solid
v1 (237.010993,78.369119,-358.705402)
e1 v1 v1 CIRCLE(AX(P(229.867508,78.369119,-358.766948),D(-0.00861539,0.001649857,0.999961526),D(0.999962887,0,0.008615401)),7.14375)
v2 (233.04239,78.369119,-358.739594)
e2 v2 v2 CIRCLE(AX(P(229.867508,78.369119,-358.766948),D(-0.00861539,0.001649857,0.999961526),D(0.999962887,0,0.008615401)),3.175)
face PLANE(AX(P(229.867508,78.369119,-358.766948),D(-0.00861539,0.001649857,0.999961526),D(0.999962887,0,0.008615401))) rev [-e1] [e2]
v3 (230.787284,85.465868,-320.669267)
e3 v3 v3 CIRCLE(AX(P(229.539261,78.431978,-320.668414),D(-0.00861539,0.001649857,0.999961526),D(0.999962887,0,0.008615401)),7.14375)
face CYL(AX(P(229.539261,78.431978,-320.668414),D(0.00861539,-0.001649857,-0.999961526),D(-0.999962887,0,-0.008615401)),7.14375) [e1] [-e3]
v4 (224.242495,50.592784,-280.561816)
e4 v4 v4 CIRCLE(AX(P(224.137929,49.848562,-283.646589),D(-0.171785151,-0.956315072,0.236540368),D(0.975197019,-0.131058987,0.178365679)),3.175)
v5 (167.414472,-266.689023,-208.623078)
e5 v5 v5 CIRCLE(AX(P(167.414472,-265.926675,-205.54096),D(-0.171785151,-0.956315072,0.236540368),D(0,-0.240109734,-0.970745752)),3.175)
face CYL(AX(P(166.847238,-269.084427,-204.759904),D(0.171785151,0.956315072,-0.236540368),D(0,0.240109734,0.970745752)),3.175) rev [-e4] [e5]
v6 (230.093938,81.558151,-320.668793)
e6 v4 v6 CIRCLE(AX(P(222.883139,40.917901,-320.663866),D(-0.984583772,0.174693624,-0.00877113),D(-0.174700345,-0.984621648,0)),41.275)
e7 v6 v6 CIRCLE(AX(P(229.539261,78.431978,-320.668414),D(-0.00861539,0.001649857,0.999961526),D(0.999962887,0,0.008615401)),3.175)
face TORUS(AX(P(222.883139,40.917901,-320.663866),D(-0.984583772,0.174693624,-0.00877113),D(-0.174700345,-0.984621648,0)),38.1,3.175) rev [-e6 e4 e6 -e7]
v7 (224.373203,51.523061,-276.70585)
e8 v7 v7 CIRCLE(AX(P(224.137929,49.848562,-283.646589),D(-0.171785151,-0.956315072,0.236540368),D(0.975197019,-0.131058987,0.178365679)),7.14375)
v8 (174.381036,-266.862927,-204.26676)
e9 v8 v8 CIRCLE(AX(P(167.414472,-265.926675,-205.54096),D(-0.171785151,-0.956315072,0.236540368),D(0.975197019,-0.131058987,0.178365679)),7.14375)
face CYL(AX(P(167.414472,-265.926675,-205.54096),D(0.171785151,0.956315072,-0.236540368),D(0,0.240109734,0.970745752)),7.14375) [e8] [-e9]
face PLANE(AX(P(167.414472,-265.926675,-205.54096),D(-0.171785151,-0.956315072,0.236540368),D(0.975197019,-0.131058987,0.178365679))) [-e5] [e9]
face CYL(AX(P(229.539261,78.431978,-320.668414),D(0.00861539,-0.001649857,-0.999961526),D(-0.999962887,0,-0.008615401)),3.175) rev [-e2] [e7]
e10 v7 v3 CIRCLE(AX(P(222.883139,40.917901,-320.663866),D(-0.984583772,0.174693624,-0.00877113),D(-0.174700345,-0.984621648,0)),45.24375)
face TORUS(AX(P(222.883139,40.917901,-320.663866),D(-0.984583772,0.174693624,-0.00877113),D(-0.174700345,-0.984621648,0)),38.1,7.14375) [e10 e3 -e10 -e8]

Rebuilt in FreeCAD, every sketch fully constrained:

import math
import FreeCAD as App
import Part
import Sketcher
Q = App.Units.Quantity

doc = App.newDocument("Part")
body = doc.addObject("PartDesign::Body", "Body")

# Sketch on an angled plane
sketch1 = body.newObject("Sketcher::SketchObject", "Sketch")
sketch1.Placement = App.Placement(App.Vector(229.867508, 78.369119, -358.766948), App.Rotation(App.Vector(0.999962887, 0, 0.008615401), App.Vector(0.000014214, 0.999998639, -0.001649796), App.Vector(-0.00861539, 0.001649857, 0.999961526), "ZXY"))
sketch1.addGeometry(Part.Circle(App.Vector(0, 0, 0), App.Vector(0, 0, 1), 7), False)
sketch1.addConstraint([
    Sketcher.Constraint("Coincident", 0, 3, -1, 1),
    Sketcher.Constraint("Diameter", 0, Q("0.5625 in")),
])

# Sketch on an angled plane
sketch2 = body.newObject("Sketcher::SketchObject", "Sketch001")
sketch2.Placement = App.Placement(App.Vector(206.25695, -36.595946, 1.837433), App.Rotation(App.Vector(0.174700345, 0.984621648, 0), App.Vector(-0.008636244, 0.001532319, 0.999961533), App.Vector(0.984583772, -0.174693624, 0.00877113), "ZXY"))
sketch2.addGeometry([
    Part.LineSegment(App.Vector(117, -361, 0), App.Vector(117, -323, 0)),
    Part.ArcOfCircle(Part.Circle(App.Vector(79, -323, 0), App.Vector(0, 0, 1), 38), math.radians(0), math.radians(76)),
    Part.LineSegment(App.Vector(88, -285, 0), App.Vector(-233, -207, 0)),
], False)
sketch2.addConstraint([
    Sketcher.Constraint("Tangent", 0, 2, 1, 1),
    Sketcher.Constraint("Tangent", 1, 2, 2, 1),
    Sketcher.Constraint("Radius", 1, Q("1.5 in")),
    Sketcher.Constraint("Distance", 2, Q("13 in")),
    Sketcher.Constraint("Distance", 0, Q("1.5 in")),
    Sketcher.Constraint("DistanceY", 1, 3, 1, 2, 37.018701),
    Sketcher.Constraint("DistanceX", -1, 1, 1, 3, 79.226412),
    Sketcher.Constraint("DistanceY", 2, 2, -1, 1, 207.38637),
    Sketcher.Constraint("DistanceX", 1, 3, 0, 1, 38.095452),
])
doc.recompute()

additivepipe = body.newObject("PartDesign::AdditivePipe", "AdditivePipe")
additivepipe.Profile = sketch1
additivepipe.Spine = (sketch2, ["Edge1", "Edge2", "Edge3"])

# Sketch on an angled plane
sketch3 = body.newObject("Sketcher::SketchObject", "Sketch002")
sketch3.Placement = App.Placement(App.Vector(229.867508, 78.369119, -358.766948), App.Rotation(App.Vector(0.999962887, 0, 0.008615401), App.Vector(0.000014214, 0.999998639, -0.001649796), App.Vector(-0.00861539, 0.001649857, 0.999961526), "ZXY"))
sketch3.addGeometry(Part.Circle(App.Vector(0, 0, 0), App.Vector(0, 0, 1), 3.2), False)
sketch3.addConstraint([
    Sketcher.Constraint("Coincident", 0, 3, -1, 1),
    Sketcher.Constraint("Diameter", 0, Q("0.25 in")),
])

# Sketch on an angled plane
sketch4 = body.newObject("Sketcher::SketchObject", "Sketch003")
sketch4.Placement = App.Placement(App.Vector(206.25695, -36.595946, 1.837433), App.Rotation(App.Vector(0.174700345, 0.984621648, 0), App.Vector(-0.008636244, 0.001532319, 0.999961533), App.Vector(0.984583772, -0.174693624, 0.00877113), "ZXY"))
sketch4.addGeometry([
    Part.LineSegment(App.Vector(117, -361, 0), App.Vector(117, -323, 0)),
    Part.ArcOfCircle(Part.Circle(App.Vector(79, -323, 0), App.Vector(0, 0, 1), 38), math.radians(0), math.radians(76)),
    Part.LineSegment(App.Vector(88, -285, 0), App.Vector(-233, -207, 0)),
], False)
sketch4.addConstraint([
    Sketcher.Constraint("Tangent", 0, 2, 1, 1),
    Sketcher.Constraint("Tangent", 1, 2, 2, 1),
    Sketcher.Constraint("Radius", 1, Q("1.5 in")),
    Sketcher.Constraint("Distance", 2, Q("13 in")),
    Sketcher.Constraint("Distance", 0, Q("1.5 in")),
    Sketcher.Constraint("DistanceY", 1, 3, 1, 2, 37.018701),
    Sketcher.Constraint("DistanceX", -1, 1, 1, 3, 79.226412),
    Sketcher.Constraint("DistanceY", 2, 2, -1, 1, 207.38637),
    Sketcher.Constraint("DistanceX", 1, 3, 0, 1, 38.095452),
])
doc.recompute()

subtractivepipe = body.newObject("PartDesign::SubtractivePipe", "SubtractivePipe")
subtractivepipe.Profile = sketch3
subtractivepipe.Spine = (sketch4, ["Edge1", "Edge2", "Edge3"])

doc.recompute()
